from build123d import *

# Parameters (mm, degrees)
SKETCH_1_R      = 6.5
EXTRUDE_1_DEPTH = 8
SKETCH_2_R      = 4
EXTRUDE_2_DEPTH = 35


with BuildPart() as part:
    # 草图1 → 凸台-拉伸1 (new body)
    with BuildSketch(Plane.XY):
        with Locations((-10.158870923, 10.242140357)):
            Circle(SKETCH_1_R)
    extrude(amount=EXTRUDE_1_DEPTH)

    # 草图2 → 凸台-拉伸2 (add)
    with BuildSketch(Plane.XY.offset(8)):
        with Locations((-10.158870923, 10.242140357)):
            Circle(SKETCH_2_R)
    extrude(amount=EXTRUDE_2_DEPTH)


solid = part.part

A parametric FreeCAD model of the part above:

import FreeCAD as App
import Part
import Sketcher

V = App.Vector

doc = App.newDocument("Part")
body = doc.addObject("PartDesign::Body", "Body")

sketch1 = doc.addObject("Sketcher::SketchObject", "Sketch")
body.addObject(sketch1)
sketch1.AttachmentSupport = (doc.XY_Plane, [""])
sketch1.MapMode = "FlatFace"
sketch1.addGeometry(Part.Circle(V(-10, 10, 0), V(0, 0, 1), 6), False)
sketch1.addConstraint([
    Sketcher.Constraint("Diameter", 0, 13.0),
    Sketcher.Constraint("DistanceX", 0, 3, -1, 1, 10.158871),
    Sketcher.Constraint("DistanceY", -1, 1, 0, 3, 10.24214),
])
pad1 = doc.addObject("PartDesign::Pad", "Pad")
body.addObject(pad1)
pad1.Profile = sketch1
pad1.Length = 8

sketch2 = doc.addObject("Sketcher::SketchObject", "Sketch001")
body.addObject(sketch2)
sketch2.AttachmentSupport = (doc.XY_Plane, [""])
sketch2.MapMode = "FlatFace"
sketch2.AttachmentOffset = App.Placement(V(0, 0, 8), App.Rotation())
sketch2.addGeometry(Part.Circle(V(-10.2, 10.2, 0), V(0, 0, 1), 4), False)
sketch2.addConstraint([
    Sketcher.Constraint("Diameter", 0, 8.0),
    Sketcher.Constraint("DistanceX", 0, 3, -1, 1, 10.158871),
    Sketcher.Constraint("DistanceY", -1, 1, 0, 3, 10.24214),
])
pad2 = doc.addObject("PartDesign::Pad", "Pad001")
body.addObject(pad2)
pad2.Profile = sketch2
pad2.Length = 35

doc.recompute()
